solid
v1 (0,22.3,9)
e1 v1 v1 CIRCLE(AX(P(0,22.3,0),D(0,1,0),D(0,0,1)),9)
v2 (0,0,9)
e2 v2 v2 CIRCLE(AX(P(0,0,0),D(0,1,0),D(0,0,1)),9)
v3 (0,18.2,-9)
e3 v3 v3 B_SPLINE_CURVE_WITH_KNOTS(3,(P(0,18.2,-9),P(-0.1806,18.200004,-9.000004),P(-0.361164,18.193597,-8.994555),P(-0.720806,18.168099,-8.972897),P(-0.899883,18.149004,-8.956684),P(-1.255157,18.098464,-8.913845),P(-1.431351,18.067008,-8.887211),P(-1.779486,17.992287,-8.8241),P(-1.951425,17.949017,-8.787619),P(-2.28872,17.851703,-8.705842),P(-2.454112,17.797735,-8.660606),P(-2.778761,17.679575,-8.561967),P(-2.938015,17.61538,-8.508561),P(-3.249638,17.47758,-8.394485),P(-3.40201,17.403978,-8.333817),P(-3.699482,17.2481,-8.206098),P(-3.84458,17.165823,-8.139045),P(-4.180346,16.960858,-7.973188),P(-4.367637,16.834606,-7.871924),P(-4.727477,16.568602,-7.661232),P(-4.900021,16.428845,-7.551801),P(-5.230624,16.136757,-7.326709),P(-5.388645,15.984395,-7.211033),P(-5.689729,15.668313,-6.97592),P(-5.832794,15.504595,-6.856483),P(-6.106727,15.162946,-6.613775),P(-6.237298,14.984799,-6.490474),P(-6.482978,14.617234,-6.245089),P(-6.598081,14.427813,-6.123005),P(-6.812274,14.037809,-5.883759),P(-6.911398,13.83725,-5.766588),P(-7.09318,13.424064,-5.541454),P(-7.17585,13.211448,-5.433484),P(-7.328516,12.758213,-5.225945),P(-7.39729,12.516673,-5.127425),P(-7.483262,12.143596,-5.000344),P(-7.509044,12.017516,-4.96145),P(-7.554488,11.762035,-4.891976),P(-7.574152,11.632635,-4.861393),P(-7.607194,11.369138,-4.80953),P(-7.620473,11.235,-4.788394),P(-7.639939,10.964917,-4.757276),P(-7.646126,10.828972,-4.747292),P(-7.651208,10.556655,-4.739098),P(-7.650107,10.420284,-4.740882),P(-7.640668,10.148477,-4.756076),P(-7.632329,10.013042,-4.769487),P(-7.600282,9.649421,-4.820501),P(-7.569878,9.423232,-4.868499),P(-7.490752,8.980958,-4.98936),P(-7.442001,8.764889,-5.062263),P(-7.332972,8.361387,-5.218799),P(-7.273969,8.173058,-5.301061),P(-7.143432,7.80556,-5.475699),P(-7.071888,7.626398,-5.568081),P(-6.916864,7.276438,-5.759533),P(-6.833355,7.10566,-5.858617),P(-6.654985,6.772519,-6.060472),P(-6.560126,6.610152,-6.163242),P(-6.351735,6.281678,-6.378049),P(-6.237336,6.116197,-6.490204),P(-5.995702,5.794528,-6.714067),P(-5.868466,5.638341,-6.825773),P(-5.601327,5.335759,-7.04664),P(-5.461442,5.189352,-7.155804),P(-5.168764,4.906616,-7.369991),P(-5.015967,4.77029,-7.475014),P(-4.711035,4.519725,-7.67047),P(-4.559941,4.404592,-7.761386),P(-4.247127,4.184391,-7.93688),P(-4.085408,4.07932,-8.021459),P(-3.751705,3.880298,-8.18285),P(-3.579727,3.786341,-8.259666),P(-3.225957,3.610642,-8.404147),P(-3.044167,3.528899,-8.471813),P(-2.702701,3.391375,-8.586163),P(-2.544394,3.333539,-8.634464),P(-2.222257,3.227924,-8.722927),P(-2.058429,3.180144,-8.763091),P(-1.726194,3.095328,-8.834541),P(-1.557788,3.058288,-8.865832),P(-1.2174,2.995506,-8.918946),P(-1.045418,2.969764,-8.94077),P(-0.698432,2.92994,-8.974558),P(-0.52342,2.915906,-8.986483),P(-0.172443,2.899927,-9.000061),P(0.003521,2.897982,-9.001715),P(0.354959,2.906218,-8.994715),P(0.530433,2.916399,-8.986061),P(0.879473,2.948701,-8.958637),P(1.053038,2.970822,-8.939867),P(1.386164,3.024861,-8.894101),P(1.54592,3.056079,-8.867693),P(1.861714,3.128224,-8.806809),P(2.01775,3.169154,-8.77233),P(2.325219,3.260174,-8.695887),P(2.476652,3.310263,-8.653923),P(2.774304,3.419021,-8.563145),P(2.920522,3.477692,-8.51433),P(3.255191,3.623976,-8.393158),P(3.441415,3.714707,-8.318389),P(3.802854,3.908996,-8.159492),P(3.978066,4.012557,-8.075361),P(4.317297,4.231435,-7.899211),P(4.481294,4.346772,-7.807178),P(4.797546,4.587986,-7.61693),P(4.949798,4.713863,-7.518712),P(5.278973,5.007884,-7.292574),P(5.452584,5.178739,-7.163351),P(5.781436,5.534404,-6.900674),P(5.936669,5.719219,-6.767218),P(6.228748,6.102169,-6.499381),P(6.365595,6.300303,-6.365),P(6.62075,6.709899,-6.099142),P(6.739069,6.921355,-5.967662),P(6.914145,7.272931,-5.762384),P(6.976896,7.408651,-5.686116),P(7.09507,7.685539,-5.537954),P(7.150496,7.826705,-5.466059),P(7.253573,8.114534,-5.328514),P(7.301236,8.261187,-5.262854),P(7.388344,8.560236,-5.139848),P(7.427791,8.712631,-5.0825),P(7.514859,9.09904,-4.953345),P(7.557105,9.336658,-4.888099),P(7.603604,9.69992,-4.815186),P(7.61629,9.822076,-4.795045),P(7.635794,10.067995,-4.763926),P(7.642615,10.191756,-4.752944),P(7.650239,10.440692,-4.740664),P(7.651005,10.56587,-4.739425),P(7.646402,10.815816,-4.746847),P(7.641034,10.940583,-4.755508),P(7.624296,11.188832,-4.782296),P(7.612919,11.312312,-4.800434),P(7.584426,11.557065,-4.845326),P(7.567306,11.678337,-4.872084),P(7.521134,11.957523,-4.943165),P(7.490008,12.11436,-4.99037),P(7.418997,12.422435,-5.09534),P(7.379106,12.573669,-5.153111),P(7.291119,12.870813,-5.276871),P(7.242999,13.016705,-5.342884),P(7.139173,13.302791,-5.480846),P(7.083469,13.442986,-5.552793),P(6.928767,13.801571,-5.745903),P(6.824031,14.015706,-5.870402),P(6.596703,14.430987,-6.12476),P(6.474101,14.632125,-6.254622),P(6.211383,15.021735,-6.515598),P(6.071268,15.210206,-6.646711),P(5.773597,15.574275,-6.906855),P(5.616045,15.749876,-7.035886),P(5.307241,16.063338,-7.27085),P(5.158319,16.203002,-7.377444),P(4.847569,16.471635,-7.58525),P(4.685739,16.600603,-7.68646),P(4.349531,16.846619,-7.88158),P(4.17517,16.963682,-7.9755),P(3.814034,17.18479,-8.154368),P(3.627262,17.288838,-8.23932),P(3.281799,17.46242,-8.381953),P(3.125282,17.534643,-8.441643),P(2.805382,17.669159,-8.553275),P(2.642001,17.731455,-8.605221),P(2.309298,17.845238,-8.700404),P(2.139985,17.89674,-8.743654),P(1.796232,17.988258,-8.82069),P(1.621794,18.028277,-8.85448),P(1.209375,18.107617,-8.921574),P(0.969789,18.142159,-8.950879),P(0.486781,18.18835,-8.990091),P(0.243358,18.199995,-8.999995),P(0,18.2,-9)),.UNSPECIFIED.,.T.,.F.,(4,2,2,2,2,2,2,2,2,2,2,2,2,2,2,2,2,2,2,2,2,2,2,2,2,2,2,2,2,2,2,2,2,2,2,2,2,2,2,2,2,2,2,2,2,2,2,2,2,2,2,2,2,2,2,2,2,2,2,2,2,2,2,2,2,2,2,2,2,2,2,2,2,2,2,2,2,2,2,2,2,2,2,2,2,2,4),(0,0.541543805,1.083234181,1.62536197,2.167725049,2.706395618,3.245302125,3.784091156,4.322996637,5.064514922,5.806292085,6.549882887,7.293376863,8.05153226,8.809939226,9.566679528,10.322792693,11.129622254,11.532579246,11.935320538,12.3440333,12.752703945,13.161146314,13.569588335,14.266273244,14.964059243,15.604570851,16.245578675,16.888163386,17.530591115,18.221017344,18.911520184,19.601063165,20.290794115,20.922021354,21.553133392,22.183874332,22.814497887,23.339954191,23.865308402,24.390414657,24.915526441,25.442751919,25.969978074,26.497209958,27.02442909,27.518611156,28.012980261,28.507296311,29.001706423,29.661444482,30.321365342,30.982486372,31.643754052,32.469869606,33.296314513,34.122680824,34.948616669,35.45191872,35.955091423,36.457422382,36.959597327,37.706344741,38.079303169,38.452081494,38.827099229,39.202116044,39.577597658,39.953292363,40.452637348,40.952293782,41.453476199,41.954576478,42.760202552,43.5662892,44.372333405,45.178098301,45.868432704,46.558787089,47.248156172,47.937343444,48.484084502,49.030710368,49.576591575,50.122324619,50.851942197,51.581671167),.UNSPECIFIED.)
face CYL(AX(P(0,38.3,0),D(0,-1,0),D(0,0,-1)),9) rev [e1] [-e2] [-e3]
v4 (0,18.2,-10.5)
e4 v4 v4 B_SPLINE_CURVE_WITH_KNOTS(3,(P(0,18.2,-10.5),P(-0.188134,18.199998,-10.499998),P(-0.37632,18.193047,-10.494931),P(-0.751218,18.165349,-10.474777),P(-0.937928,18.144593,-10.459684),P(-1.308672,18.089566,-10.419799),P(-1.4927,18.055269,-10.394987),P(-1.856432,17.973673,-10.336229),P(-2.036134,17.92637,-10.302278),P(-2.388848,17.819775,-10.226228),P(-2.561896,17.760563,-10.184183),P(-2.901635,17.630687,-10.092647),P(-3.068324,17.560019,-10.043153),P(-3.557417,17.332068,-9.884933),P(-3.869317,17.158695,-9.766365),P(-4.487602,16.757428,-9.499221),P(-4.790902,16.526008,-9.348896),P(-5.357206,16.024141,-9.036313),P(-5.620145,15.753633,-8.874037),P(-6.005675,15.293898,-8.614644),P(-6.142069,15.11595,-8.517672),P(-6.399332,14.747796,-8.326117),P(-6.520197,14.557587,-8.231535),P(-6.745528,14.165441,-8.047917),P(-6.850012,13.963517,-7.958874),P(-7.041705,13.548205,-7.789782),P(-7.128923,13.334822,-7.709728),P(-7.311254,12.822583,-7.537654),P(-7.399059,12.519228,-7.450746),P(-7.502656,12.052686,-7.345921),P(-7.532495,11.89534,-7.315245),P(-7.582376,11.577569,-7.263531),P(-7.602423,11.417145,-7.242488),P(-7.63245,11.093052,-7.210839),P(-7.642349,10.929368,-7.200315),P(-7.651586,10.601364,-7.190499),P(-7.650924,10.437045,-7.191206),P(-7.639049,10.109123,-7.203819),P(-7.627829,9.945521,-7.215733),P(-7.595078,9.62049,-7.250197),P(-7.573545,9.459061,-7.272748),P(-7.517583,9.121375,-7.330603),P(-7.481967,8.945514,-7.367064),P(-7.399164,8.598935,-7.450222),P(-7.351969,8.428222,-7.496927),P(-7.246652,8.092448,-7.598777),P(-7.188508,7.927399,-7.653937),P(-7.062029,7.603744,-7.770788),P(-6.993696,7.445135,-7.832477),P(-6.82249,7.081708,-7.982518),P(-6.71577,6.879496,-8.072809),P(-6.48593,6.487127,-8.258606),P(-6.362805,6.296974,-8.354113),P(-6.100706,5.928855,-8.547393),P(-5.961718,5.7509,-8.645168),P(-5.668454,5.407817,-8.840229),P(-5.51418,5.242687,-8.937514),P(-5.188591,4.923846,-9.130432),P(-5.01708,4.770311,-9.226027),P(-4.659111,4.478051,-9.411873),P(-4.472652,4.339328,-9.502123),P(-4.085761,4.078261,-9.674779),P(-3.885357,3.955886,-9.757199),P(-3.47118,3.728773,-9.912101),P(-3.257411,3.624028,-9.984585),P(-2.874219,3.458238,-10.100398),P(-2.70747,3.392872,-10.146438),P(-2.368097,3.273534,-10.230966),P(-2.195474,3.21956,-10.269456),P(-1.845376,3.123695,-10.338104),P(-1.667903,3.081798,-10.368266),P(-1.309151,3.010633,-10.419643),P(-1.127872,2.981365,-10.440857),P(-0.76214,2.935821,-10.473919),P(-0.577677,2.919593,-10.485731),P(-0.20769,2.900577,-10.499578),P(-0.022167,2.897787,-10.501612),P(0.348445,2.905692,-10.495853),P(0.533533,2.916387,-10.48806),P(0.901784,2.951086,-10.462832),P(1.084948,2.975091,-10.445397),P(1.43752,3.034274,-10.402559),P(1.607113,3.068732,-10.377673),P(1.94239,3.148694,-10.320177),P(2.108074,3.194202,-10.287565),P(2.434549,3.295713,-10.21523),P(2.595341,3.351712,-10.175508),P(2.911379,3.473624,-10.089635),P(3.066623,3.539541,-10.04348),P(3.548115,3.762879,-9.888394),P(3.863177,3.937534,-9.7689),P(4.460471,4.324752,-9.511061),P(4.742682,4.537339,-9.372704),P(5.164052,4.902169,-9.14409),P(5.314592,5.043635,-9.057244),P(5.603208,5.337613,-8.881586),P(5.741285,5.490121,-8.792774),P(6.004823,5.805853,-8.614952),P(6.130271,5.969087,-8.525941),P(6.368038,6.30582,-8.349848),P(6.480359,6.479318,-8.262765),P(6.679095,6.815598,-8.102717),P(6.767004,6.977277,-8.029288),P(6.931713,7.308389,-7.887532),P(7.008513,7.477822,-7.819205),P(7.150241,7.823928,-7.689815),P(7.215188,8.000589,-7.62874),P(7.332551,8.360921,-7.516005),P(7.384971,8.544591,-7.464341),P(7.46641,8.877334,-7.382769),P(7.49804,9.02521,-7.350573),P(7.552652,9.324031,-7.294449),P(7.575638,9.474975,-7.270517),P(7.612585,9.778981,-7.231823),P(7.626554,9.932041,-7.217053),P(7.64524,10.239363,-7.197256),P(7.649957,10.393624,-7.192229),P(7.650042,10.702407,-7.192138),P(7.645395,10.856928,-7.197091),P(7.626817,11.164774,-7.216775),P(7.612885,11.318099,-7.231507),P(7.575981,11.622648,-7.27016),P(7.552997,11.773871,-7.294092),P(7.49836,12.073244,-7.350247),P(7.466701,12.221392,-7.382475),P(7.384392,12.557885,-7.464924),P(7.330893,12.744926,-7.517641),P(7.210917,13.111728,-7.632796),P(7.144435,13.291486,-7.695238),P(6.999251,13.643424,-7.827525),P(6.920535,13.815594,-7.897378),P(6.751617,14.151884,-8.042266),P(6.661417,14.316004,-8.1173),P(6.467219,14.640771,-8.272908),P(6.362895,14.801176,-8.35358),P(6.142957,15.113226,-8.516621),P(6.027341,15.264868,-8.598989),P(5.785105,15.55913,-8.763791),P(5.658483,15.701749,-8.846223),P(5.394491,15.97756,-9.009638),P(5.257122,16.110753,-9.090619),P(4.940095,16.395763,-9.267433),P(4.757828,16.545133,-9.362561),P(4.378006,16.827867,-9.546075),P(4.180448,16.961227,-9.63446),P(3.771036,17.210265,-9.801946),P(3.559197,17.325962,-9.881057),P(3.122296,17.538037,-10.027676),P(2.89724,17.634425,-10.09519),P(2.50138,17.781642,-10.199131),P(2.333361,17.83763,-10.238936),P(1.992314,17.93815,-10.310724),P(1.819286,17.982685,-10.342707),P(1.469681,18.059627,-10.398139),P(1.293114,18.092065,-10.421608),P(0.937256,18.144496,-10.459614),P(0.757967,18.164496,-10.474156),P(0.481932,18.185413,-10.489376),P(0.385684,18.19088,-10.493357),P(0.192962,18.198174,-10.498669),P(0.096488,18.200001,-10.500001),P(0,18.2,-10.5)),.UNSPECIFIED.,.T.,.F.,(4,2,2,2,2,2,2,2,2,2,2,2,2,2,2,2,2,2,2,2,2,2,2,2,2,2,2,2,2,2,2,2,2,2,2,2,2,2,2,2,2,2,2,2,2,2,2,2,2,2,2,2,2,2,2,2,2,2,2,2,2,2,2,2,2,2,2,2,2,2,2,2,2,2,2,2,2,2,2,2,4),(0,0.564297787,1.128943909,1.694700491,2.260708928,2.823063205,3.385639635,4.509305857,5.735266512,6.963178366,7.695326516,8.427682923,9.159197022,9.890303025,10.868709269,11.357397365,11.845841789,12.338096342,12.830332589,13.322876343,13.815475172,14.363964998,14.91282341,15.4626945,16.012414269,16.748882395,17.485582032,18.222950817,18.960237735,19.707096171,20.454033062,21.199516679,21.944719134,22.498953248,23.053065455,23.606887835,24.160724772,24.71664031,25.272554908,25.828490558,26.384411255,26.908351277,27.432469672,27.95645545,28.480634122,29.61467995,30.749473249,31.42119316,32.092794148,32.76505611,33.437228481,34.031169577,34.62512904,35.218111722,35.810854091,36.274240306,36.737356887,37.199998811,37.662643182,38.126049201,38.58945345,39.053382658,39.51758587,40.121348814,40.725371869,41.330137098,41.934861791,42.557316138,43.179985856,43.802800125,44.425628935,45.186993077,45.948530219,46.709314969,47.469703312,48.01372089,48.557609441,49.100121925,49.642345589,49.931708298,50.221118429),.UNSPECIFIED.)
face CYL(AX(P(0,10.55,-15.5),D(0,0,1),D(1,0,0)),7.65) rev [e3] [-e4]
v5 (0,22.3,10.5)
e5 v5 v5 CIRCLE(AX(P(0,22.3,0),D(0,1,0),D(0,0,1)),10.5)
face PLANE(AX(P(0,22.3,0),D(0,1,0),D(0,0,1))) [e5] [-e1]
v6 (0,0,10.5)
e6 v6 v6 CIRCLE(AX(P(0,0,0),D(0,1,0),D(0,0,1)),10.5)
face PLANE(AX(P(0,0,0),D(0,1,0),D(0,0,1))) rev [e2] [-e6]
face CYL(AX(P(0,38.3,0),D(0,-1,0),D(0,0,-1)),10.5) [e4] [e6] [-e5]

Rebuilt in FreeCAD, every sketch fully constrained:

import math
import FreeCAD as App
import Part
import Sketcher
from FreeCAD import Vector
Q = App.Units.Quantity


def edges_at(feature, points):
    """Names of the edges that pass closest to the given points."""
    edges = feature.Shape.Edges
    near = lambda p: min(range(len(edges)), key=lambda i: edges[i].distToShape(Part.Vertex(*p))[0])
    return sorted({f"Edge{near(p) + 1}" for p in points})

doc = App.newDocument("Part")
body = doc.addObject("PartDesign::Body", "Body")

# Sketch on XZ plane
sketch1 = body.newObject("Sketcher::SketchObject", "Sketch")
sketch1.AttachmentSupport = (doc.getObject("XZ_Plane"), [""])
sketch1.MapMode = "FlatFace"
sketch1.addGeometry(Part.Circle(Vector(0, 0, 0), Vector(0, 0, 1), 10), False)
sketch1.addGeometry(Part.Circle(Vector(0, 0, 0), Vector(0, 0, 1), 9), False)
sketch1.addConstraint(Sketcher.Constraint("Coincident", 0, 3, -1, 1))
sketch1.addConstraint(Sketcher.Constraint("Coincident", 1, 3, -1, 1))
sketch1.addConstraint(Sketcher.Constraint("Diameter", 0, Q("21 mm")))
sketch1.addConstraint(Sketcher.Constraint("Diameter", 1, Q("18 mm")))
pad1 = body.newObject("PartDesign::Pad", "Pad")
pad1.Profile = sketch1
pad1.Length = 38.3
pad1.Reversed = True

# Sketch on XZ plane
sketch2 = body.newObject("Sketcher::SketchObject", "Sketch001")
sketch2.AttachmentSupport = (doc.getObject("XZ_Plane"), [""])
sketch2.MapMode = "FlatFace"
sketch2.AttachmentOffset = App.Placement(Vector(0, 0, -38.3), App.Rotation())
sketch2.addGeometry(Part.LineSegment(Vector(-3, 12.13, 0), Vector(-3, 12.5, 0)), False)
sketch2.addGeometry(Part.ArcOfCircle(Part.Circle(Vector(0, 12.5, 0), Vector(0, 0, 1), 3), math.radians(0), math.radians(180)), False)
sketch2.addGeometry(Part.LineSegment(Vector(3, 12.5, 0), Vector(3, 12.13, 0)), False)
sketch2.addGeometry(Part.ArcOfCircle(Part.Circle(Vector(0, 0, 0), Vector(0, 0, 1), 12.5), math.radians(44), math.radians(76)), False)
sketch2.addGeometry(Part.LineSegment(Vector(9.01, 8.67, 0), Vector(9.33, 8.85, 0)), False)
sketch2.addGeometry(Part.ArcOfCircle(Part.Circle(Vector(10.83, 6.25, 0), Vector(0, 0, 1), 3), math.radians(-60), math.radians(120)), False)
sketch2.addGeometry(Part.LineSegment(Vector(12.33, 3.65, 0), Vector(12.01, 3.47, 0)), False)
sketch2.addGeometry(Part.ArcOfCircle(Part.Circle(Vector(0, 0, 0), Vector(0, 0, 1), 12.5), math.radians(-1.11), math.radians(16.11)), False)
sketch2.addGeometry(Part.LineSegment(Vector(12.5, -0.24, 0), Vector(12.85, -0.34, 0)), False)
sketch2.addGeometry(Part.ArcOfCircle(Part.Circle(Vector(12.07, -3.24, 0), Vector(0, 0, 1), 3), math.radians(-105), math.radians(75)), False)
sketch2.addGeometry(Part.LineSegment(Vector(11.3, -6.13, 0), Vector(10.94, -6.04, 0)), False)
sketch2.addGeometry(Part.ArcOfCircle(Part.Circle(Vector(0, 0, 0), Vector(0, 0, 1), 12.5), math.radians(-76), math.radians(-29)), False)
sketch2.addGeometry(Part.LineSegment(Vector(3, -12.13, 0), Vector(3, -12.5, 0)), False)
sketch2.addGeometry(Part.ArcOfCircle(Part.Circle(Vector(0, -12.5, 0), Vector(0, 0, 1), 3), math.radians(180), math.radians(360)), False)
sketch2.addGeometry(Part.LineSegment(Vector(-3, -12.5, 0), Vector(-3, -12.13, 0)), False)
sketch2.addGeometry(Part.ArcOfCircle(Part.Circle(Vector(0, 0, 0), Vector(0, 0, 1), 12.5), math.radians(-151), math.radians(-104)), False)
sketch2.addGeometry(Part.LineSegment(Vector(-10.94, -6.04, 0), Vector(-11.3, -6.13, 0)), False)
sketch2.addGeometry(Part.ArcOfCircle(Part.Circle(Vector(-12.07, -3.24, 0), Vector(0, 0, 1), 3), math.radians(105), math.radians(285)), False)
sketch2.addGeometry(Part.LineSegment(Vector(-12.85, -0.34, 0), Vector(-12.5, -0.24, 0)), False)
sketch2.addGeometry(Part.ArcOfCircle(Part.Circle(Vector(0, 0, 0), Vector(0, 0, 1), 12.5), math.radians(163.89), math.radians(181.11)), False)
sketch2.addGeometry(Part.LineSegment(Vector(-12.01, 3.47, 0), Vector(-12.33, 3.65, 0)), False)
sketch2.addGeometry(Part.ArcOfCircle(Part.Circle(Vector(-10.83, 6.25, 0), Vector(0, 0, 1), 3), math.radians(60), math.radians(240)), False)
sketch2.addGeometry(Part.LineSegment(Vector(-9.33, 8.85, 0), Vector(-9.01, 8.67, 0)), False)
sketch2.addGeometry(Part.ArcOfCircle(Part.Circle(Vector(0, 0, 0), Vector(0, 0, 1), 12.5), math.radians(104), math.radians(136)), False)
sketch2.addGeometry(Part.Circle(Vector(0, 12.5, 0), Vector(0, 0, 1), 1), False)
sketch2.addGeometry(Part.Circle(Vector(-12.07, -3.24, 0), Vector(0, 0, 1), 1), False)
sketch2.addGeometry(Part.Circle(Vector(0, 0, 0), Vector(0, 0, 1), 9), False)
sketch2.addGeometry(Part.Circle(Vector(12.07, -3.24, 0), Vector(0, 0, 1), 1), False)
sketch2.addConstraint(Sketcher.Constraint("Tangent", 0, 2, 1, 2))
sketch2.addConstraint(Sketcher.Constraint("Tangent", 1, 1, 2, 1))
sketch2.addConstraint(Sketcher.Constraint("Coincident", 2, 2, 3, 2))
sketch2.addConstraint(Sketcher.Constraint("Coincident", 3, 1, 4, 1))
sketch2.addConstraint(Sketcher.Constraint("Tangent", 4, 2, 5, 2))
sketch2.addConstraint(Sketcher.Constraint("Tangent", 5, 1, 6, 1))
sketch2.addConstraint(Sketcher.Constraint("Coincident", 6, 2, 7, 2))
sketch2.addConstraint(Sketcher.Constraint("Coincident", 7, 1, 8, 1))
sketch2.addConstraint(Sketcher.Constraint("Tangent", 8, 2, 9, 2))
sketch2.addConstraint(Sketcher.Constraint("Tangent", 9, 1, 10, 1))
sketch2.addConstraint(Sketcher.Constraint("Coincident", 10, 2, 11, 2))
sketch2.addConstraint(Sketcher.Constraint("Coincident", 11, 1, 12, 1))
sketch2.addConstraint(Sketcher.Constraint("Tangent", 12, 2, 13, 2))
sketch2.addConstraint(Sketcher.Constraint("Tangent", 13, 1, 14, 1))
sketch2.addConstraint(Sketcher.Constraint("Coincident", 14, 2, 15, 2))
sketch2.addConstraint(Sketcher.Constraint("Coincident", 15, 1, 16, 1))
sketch2.addConstraint(Sketcher.Constraint("Tangent", 16, 2, 17, 2))
sketch2.addConstraint(Sketcher.Constraint("Tangent", 17, 1, 18, 1))
sketch2.addConstraint(Sketcher.Constraint("Coincident", 18, 2, 19, 2))
sketch2.addConstraint(Sketcher.Constraint("Coincident", 19, 1, 20, 1))
sketch2.addConstraint(Sketcher.Constraint("Tangent", 20, 2, 21, 2))
sketch2.addConstraint(Sketcher.Constraint("Tangent", 21, 1, 22, 1))
sketch2.addConstraint(Sketcher.Constraint("Coincident", 22, 2, 23, 2))
sketch2.addConstraint(Sketcher.Constraint("Coincident", 23, 1, 0, 1))
sketch2.addConstraint(Sketcher.Constraint("Vertical", 0))
sketch2.addConstraint(Sketcher.Constraint("Vertical", 2))
sketch2.addConstraint(Sketcher.Constraint("Vertical", 12))
sketch2.addConstraint(Sketcher.Constraint("Vertical", 14))
sketch2.addConstraint(Sketcher.Constraint("Coincident", 3, 3, -1, 1))
sketch2.addConstraint(Sketcher.Constraint("Coincident", 7, 3, -1, 1))
sketch2.addConstraint(Sketcher.Constraint("Coincident", 11, 3, -1, 1))
sketch2.addConstraint(Sketcher.Constraint("Coincident", 15, 3, -1, 1))
sketch2.addConstraint(Sketcher.Constraint("Coincident", 19, 3, -1, 1))
sketch2.addConstraint(Sketcher.Constraint("Coincident", 23, 3, -1, 1))
sketch2.addConstraint(Sketcher.Constraint("Coincident", 26, 3, -1, 1))
sketch2.addConstraint(Sketcher.Constraint("Coincident", 24, 3, 1, 3))
sketch2.addConstraint(Sketcher.Constraint("Coincident", 25, 3, 17, 3))
sketch2.addConstraint(Sketcher.Constraint("Coincident", 27, 3, 9, 3))
sketch2.addConstraint(Sketcher.Constraint("Equal", 1, 5))
sketch2.addConstraint(Sketcher.Constraint("Equal", 3, 7))
sketch2.addConstraint(Sketcher.Constraint("Equal", 5, 9))
sketch2.addConstraint(Sketcher.Constraint("Equal", 7, 11))
sketch2.addConstraint(Sketcher.Constraint("Equal", 9, 13))
sketch2.addConstraint(Sketcher.Constraint("Equal", 11, 15))
sketch2.addConstraint(Sketcher.Constraint("Equal", 13, 17))
sketch2.addConstraint(Sketcher.Constraint("Equal", 15, 19))
sketch2.addConstraint(Sketcher.Constraint("Equal", 17, 21))
sketch2.addConstraint(Sketcher.Constraint("Equal", 19, 23))
sketch2.addConstraint(Sketcher.Constraint("Equal", 24, 25))
sketch2.addConstraint(Sketcher.Constraint("Equal", 25, 27))
sketch2.addConstraint(Sketcher.Constraint("Symmetric", 1, 3, 13, 3, -1, 1))
sketch2.addConstraint(Sketcher.Constraint("Symmetric", 9, 3, 17, 3, -2))
sketch2.addConstraint(Sketcher.Constraint("Symmetric", 5, 3, 21, 3, -2))
sketch2.addConstraint(Sketcher.Constraint("PointOnObject", 1, 3, -2))
sketch2.addConstraint(Sketcher.Constraint("Parallel", 4, 6))
sketch2.addConstraint(Sketcher.Constraint("Parallel", 8, 10))
sketch2.addConstraint(Sketcher.Constraint("Parallel", 16, 18))
sketch2.addConstraint(Sketcher.Constraint("Parallel", 20, 22))
sketch2.addConstraint(Sketcher.Constraint("Horizontal", 10, 2, 15, 1))
sketch2.addConstraint(Sketcher.Constraint("Horizontal", 6, 2, 19, 1))
sketch2.addConstraint(Sketcher.Constraint("Equal", 4, 6))
sketch2.addConstraint(Sketcher.Constraint("Equal", 6, 8))
sketch2.addConstraint(Sketcher.Constraint("Equal", 8, 10))
sketch2.addConstraint(Sketcher.Constraint("Diameter", 24, Q("2 mm")))
sketch2.addConstraint(Sketcher.Constraint("Diameter", 26, Q("18 mm")))
sketch2.addConstraint(Sketcher.Constraint("Radius", 1, Q("3 mm")))
sketch2.addConstraint(Sketcher.Constraint("Radius", 3, Q("12.5 mm")))
sketch2.addConstraint(Sketcher.Constraint("Angle", 4, Q("30 deg")))
sketch2.addConstraint(Sketcher.Constraint("Angle", 8, Q("-15 deg")))
sketch2.addConstraint(Sketcher.Constraint("DistanceY", -1, 1, 1, 3, Q("12.5 mm")))
sketch2.addConstraint(Sketcher.Constraint("DistanceY", -1, 1, 5, 3, Q("6.25 mm")))
pad2 = body.newObject("PartDesign::Pad", "Pad001")
pad2.Profile = sketch2
pad2.Length = 1.5
pad2.Reversed = True
doc.recompute()

fillet = body.newObject("PartDesign::Fillet", "Fillet")
fillet.Base = (pad2, edges_at(pad2, [
    (-3, 39.05, 12.135),
    (3, 39.05, 12.135),
    (9.009, 39.05, 8.665),
    (12.009, 39.05, 3.469),
    (12.498, 39.05, -0.243),
    (10.945, 39.05, -6.038),
    (3, 39.05, -12.135),
    (-3, 39.05, -12.135),
    (-10.945, 39.05, -6.038),
    (-12.498, 39.05, -0.243),
    (-12.009, 39.05, 3.469),
    (-9.009, 39.05, 8.665),
]))
fillet.Radius = 0.5

# Sketch on XY plane
sketch3 = body.newObject("Sketcher::SketchObject", "Sketch002")
sketch3.AttachmentSupport = (doc.getObject("XY_Plane"), [""])
sketch3.MapMode = "FlatFace"
sketch3.addGeometry(Part.Circle(Vector(0, 11, 0), Vector(0, 0, 1), 8), False)
sketch3.addConstraint(Sketcher.Constraint("PointOnObject", 0, 3, -2))
sketch3.addConstraint(Sketcher.Constraint("Diameter", 0, Q("15.3 mm")))
sketch3.addConstraint(Sketcher.Constraint("DistanceY", -1, 1, 0, 3, Q("10.55 mm")))
pocket1 = body.newObject("PartDesign::Pocket", "Pocket")
pocket1.Profile = sketch3
pocket1.Type = "ThroughAll"

# Sketch on XZ plane
sketch4 = body.newObject("Sketcher::SketchObject", "Sketch003")
sketch4.AttachmentSupport = (doc.getObject("XZ_Plane"), [""])
sketch4.MapMode = "FlatFace"
sketch4.AttachmentOffset = App.Placement(Vector(0, 0, -39.8), App.Rotation())
sketch4.addGeometry(Part.Circle(Vector(0, 0, 0), Vector(0, 0, 1), 21), False)
sketch4.addConstraint(Sketcher.Constraint("Coincident", 0, 3, -1, 1))
sketch4.addConstraint(Sketcher.Constraint("Diameter", 0, Q("41.510602 mm")))
pocket2 = body.newObject("PartDesign::Pocket", "Pocket001")
pocket2.Profile = sketch4
pocket2.Length = 17.5
pocket2.Reversed = True

doc.recompute()
